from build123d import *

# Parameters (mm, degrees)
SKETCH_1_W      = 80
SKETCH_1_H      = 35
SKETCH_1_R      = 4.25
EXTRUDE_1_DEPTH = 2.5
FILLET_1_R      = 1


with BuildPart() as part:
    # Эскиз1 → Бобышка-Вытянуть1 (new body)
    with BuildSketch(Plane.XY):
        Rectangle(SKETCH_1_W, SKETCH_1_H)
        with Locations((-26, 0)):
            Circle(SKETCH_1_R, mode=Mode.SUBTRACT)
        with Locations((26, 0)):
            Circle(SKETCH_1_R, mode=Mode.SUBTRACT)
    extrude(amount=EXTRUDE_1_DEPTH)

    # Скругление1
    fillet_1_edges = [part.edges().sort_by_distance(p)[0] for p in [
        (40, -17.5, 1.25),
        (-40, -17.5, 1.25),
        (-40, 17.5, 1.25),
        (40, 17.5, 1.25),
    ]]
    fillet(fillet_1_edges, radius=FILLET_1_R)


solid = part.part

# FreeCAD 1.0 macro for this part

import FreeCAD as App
import Part
import Sketcher
Q = App.Units.Quantity


def edges_at(feature, points):
    """Names of the edges that pass closest to the given points."""
    edges = feature.Shape.Edges
    near = lambda p: min(range(len(edges)), key=lambda i: edges[i].distToShape(Part.Vertex(*p))[0])
    return sorted({f"Edge{near(p) + 1}" for p in points})


def add_polygon(sketch, points):
    """Adds a closed chain of lines whose ends are joined by coincident constraints."""
    first, n = sketch.GeometryCount, len(points)
    for a, b in zip(points, points[1:] + points[:1]):
        sketch.addGeometry(Part.LineSegment(App.Vector(*a, 0), App.Vector(*b, 0)), False)
    for i in range(n):
        sketch.addConstraint(Sketcher.Constraint("Coincident", first + i, 2, first + (i + 1) % n, 1))

doc = App.newDocument("Part")
params = doc.addObject("Spreadsheet::Sheet", "Params")
for row, (alias, value) in enumerate([
    ("sketch1_diameter", "8.5 mm"),
    ("sketch1_width", "80 mm"),
    ("sketch1_height", "35 mm"),
    ("pad1_length", "2.5 mm"),
    ("fillet_radius", "1 mm"),
], start=1):
    params.set(f"A{row}", alias)
    params.set(f"B{row}", "=" + value)
    params.setAlias(f"B{row}", alias)

body = doc.addObject("PartDesign::Body", "Body")

# Sketch on XY plane
sketch1 = body.newObject("Sketcher::SketchObject", "Sketch")
sketch1.AttachmentSupport = (doc.getObject("XY_Plane"), [""])
sketch1.MapMode = "FlatFace"
add_polygon(sketch1, [(-40, 17.5), (-40, -17.5), (40, -17.5), (40, 17.5)])  # lines 0-3
sketch1.addGeometry(Part.Circle(App.Vector(-26, 0, 0), App.Vector(0, 0, 1), 4.2), False)  # 4
sketch1.addGeometry(Part.Circle(App.Vector(26, 0, 0), App.Vector(0, 0, 1), 4.2), False)  # 5
sketch1.addConstraint(Sketcher.Constraint("Vertical", 0))
sketch1.addConstraint(Sketcher.Constraint("Horizontal", 1))
sketch1.addConstraint(Sketcher.Constraint("Vertical", 2))
sketch1.addConstraint(Sketcher.Constraint("Horizontal", 3))
sketch1.addConstraint(Sketcher.Constraint("Equal", 4, 5))
sketch1.addConstraint(Sketcher.Constraint("Symmetric", 4, 3, 5, 3, -1, 1))
sketch1.addConstraint(Sketcher.Constraint("Symmetric", 0, 2, 2, 2, -1, 1))
sketch1.addConstraint(Sketcher.Constraint("PointOnObject", 4, 3, -1))
sketch1.addConstraint(Sketcher.Constraint("Diameter", 4, Q("8.5 mm")))
sketch1.addConstraint(Sketcher.Constraint("DistanceX", 1, 1, 1, 2, Q("80 mm")))
sketch1.addConstraint(Sketcher.Constraint("DistanceY", 0, 2, 0, 1, Q("35 mm")))
sketch1.addConstraint(Sketcher.Constraint("DistanceX", 4, 3, -1, 1, Q("26 mm")))
sketch1.setExpression("Constraints[12]", "Params.sketch1_diameter")
sketch1.setExpression("Constraints[13]", "Params.sketch1_width")
sketch1.setExpression("Constraints[14]", "Params.sketch1_height")
pad1 = body.newObject("PartDesign::Pad", "Pad")
pad1.Profile = sketch1
pad1.setExpression("Length", "Params.pad1_length")
doc.recompute()

fillet = body.newObject("PartDesign::Fillet", "Fillet")
fillet.Base = (pad1, edges_at(pad1, [
    (40, -17.5, 1.25),
    (-40, -17.5, 1.25),
    (-40, 17.5, 1.25),
    (40, 17.5, 1.25),
]))
fillet.setExpression("Radius", "Params.fillet_radius")

doc.recompute()
